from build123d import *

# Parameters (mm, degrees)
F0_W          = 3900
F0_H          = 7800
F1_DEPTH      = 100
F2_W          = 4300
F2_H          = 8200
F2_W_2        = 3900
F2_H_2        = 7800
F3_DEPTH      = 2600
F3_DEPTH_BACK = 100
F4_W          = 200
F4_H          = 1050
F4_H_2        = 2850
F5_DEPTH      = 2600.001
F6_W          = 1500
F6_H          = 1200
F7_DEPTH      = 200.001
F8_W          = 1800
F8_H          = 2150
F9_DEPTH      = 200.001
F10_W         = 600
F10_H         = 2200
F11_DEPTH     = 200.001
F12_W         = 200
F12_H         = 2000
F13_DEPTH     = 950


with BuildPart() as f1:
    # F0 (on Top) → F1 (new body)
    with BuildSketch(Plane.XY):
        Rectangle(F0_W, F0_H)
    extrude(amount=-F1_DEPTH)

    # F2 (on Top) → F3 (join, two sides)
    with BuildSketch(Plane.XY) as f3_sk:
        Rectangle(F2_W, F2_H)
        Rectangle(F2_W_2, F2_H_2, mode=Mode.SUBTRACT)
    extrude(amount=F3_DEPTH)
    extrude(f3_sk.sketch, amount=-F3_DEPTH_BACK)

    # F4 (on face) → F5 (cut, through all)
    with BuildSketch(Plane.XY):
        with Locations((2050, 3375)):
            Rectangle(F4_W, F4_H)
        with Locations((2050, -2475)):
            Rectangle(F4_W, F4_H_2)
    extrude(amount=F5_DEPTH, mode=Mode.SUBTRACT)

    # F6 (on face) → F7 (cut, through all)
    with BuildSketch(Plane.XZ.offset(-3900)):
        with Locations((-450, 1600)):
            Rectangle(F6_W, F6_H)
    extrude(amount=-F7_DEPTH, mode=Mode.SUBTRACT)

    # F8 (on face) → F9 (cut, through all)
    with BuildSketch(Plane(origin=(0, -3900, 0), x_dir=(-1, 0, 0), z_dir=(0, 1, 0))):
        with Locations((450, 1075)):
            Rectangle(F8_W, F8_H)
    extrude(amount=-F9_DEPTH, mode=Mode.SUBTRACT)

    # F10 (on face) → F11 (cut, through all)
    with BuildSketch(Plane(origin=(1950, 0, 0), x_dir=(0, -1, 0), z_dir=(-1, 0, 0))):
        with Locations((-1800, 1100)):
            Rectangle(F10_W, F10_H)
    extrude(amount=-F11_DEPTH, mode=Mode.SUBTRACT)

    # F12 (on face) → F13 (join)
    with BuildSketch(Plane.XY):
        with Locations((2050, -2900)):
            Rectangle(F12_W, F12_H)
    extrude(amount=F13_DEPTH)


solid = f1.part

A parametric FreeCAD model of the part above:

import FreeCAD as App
import Part
import Sketcher
from FreeCAD import Vector


def add_polygon(sketch, points):
    """Adds a closed chain of lines whose ends are joined by coincident constraints."""
    first, n = sketch.GeometryCount, len(points)
    for a, b in zip(points, points[1:] + points[:1]):
        sketch.addGeometry(Part.LineSegment(App.Vector(*a, 0), App.Vector(*b, 0)), False)
    for i in range(n):
        sketch.addConstraint(Sketcher.Constraint("Coincident", first + i, 2, first + (i + 1) % n, 1))

doc = App.newDocument("Part")
body = doc.addObject("PartDesign::Body", "Body")

sketch1 = body.newObject("Sketcher::SketchObject", "Sketch")
sketch1.AttachmentSupport = (doc.getObject("XY_Plane"), [""])
sketch1.MapMode = "FlatFace"
add_polygon(sketch1, [(-1950, 3900), (-1950, -3900), (1950, -3900), (1950, 3900)])
sketch1.addConstraint([
    Sketcher.Constraint("Vertical", 0),
    Sketcher.Constraint("Horizontal", 1),
    Sketcher.Constraint("Vertical", 2),
    Sketcher.Constraint("Horizontal", 3),
    Sketcher.Constraint("Symmetric", 0, 2, 2, 2, -1, 1),
    Sketcher.Constraint("DistanceX", 1, 1, 1, 2, 3900.0),
    Sketcher.Constraint("DistanceY", 0, 2, 0, 1, 7800.0),
])
pad1 = body.newObject("PartDesign::Pad", "Pad")
pad1.Profile = sketch1
pad1.Length = 100
pad1.Reversed = True

sketch2 = body.newObject("Sketcher::SketchObject", "Sketch001")
sketch2.AttachmentSupport = (doc.getObject("XY_Plane"), [""])
sketch2.MapMode = "FlatFace"
add_polygon(sketch2, [(-2150, 4100), (-2150, -4100), (2150, -4100), (2150, 4100)])
add_polygon(sketch2, [(1950, -3900), (-1950, -3900), (-1950, 3900), (1950, 3900)])
sketch2.addConstraint([
    Sketcher.Constraint("Vertical", 0),
    Sketcher.Constraint("Horizontal", 1),
    Sketcher.Constraint("Vertical", 2),
    Sketcher.Constraint("Horizontal", 3),
    Sketcher.Constraint("Horizontal", 4),
    Sketcher.Constraint("Vertical", 5),
    Sketcher.Constraint("Horizontal", 6),
    Sketcher.Constraint("Vertical", 7),
    Sketcher.Constraint("Symmetric", 0, 2, 2, 2, -1, 1),
    Sketcher.Constraint("Symmetric", 4, 2, 6, 2, -1, 1),
    Sketcher.Constraint("DistanceX", 1, 1, 1, 2, 4300.0),
    Sketcher.Constraint("DistanceX", 4, 2, 4, 1, 3900.0),
    Sketcher.Constraint("DistanceY", 0, 2, 0, 1, 8200.0),
    Sketcher.Constraint("DistanceY", 5, 1, 5, 2, 7800.0),
])
pad2 = body.newObject("PartDesign::Pad", "Pad001")
pad2.Profile = sketch2
pad2.Type = "TwoLengths"
pad2.Length = 2600
pad2.Length2 = 100

sketch3 = body.newObject("Sketcher::SketchObject", "Sketch002")
sketch3.AttachmentSupport = (doc.getObject("XY_Plane"), [""])
sketch3.MapMode = "FlatFace"
add_polygon(sketch3, [(1950, 3900), (1950, 2850), (2150, 2850), (2150, 3900)])
add_polygon(sketch3, [(1950, -1050), (1950, -3900), (2150, -3900), (2150, -1050)])
sketch3.addConstraint([
    Sketcher.Constraint("Vertical", 0),
    Sketcher.Constraint("Horizontal", 1),
    Sketcher.Constraint("Vertical", 2),
    Sketcher.Constraint("Horizontal", 3),
    Sketcher.Constraint("Vertical", 4),
    Sketcher.Constraint("Horizontal", 5),
    Sketcher.Constraint("Vertical", 6),
    Sketcher.Constraint("Horizontal", 7),
    Sketcher.Constraint("Symmetric", 3, 2, 4, 2, -1),
    Sketcher.Constraint("Vertical", 2, 2, 5, 2),
    Sketcher.Constraint("DistanceX", 1, 1, 1, 2, 200.0),
    Sketcher.Constraint("DistanceY", 0, 2, 0, 1, 1050.0),
    Sketcher.Constraint("DistanceY", 4, 2, 4, 1, 2850.0),
    Sketcher.Constraint("DistanceX", -1, 1, 0, 2, 1950.0),
    Sketcher.Constraint("DistanceY", -1, 1, 0, 2, 2850.0),
])
pocket1 = body.newObject("PartDesign::Pocket", "Pocket")
pocket1.Profile = sketch3
pocket1.Type = "ThroughAll"
pocket1.Reversed = True

sketch4 = body.newObject("Sketcher::SketchObject", "Sketch003")
sketch4.AttachmentSupport = (doc.getObject("XZ_Plane"), [""])
sketch4.MapMode = "FlatFace"
sketch4.AttachmentOffset = App.Placement(Vector(0, 0, -3900), App.Rotation())
add_polygon(sketch4, [(-1200, 2200), (-1200, 1000), (300, 1000), (300, 2200)])
sketch4.addConstraint([
    Sketcher.Constraint("Vertical", 0),
    Sketcher.Constraint("Horizontal", 1),
    Sketcher.Constraint("Vertical", 2),
    Sketcher.Constraint("Horizontal", 3),
    Sketcher.Constraint("DistanceX", 1, 1, 1, 2, 1500.0),
    Sketcher.Constraint("DistanceY", 0, 2, 0, 1, 1200.0),
    Sketcher.Constraint("DistanceX", 0, 2, -1, 1, 1200.0),
    Sketcher.Constraint("DistanceY", -1, 1, 0, 2, 1000.0),
])
pocket2 = body.newObject("PartDesign::Pocket", "Pocket001")
pocket2.Profile = sketch4
pocket2.Type = "ThroughAll"

sketch5 = body.newObject("Sketcher::SketchObject", "Sketch004")
sketch5.AttachmentSupport = (doc.getObject("XZ_Plane"), [""])
sketch5.MapMode = "FlatFace"
sketch5.AttachmentOffset = App.Placement(Vector(0, 0, 3900), App.Rotation())
add_polygon(sketch5, [(450, 2150), (450, 0), (-1350, 0), (-1350, 2150)])
sketch5.addConstraint([
    Sketcher.Constraint("Vertical", 0),
    Sketcher.Constraint("Horizontal", 1),
    Sketcher.Constraint("Vertical", 2),
    Sketcher.Constraint("Horizontal", 3),
    Sketcher.Constraint("PointOnObject", 0, 2, -1),
    Sketcher.Constraint("DistanceX", 1, 2, 1, 1, 1800.0),
    Sketcher.Constraint("DistanceY", 0, 2, 0, 1, 2150.0),
    Sketcher.Constraint("DistanceX", -1, 1, 0, 2, 450.0),
])
pocket3 = body.newObject("PartDesign::Pocket", "Pocket002")
pocket3.Profile = sketch5
pocket3.Type = "ThroughAll"
pocket3.Reversed = True

sketch6 = body.newObject("Sketcher::SketchObject", "Sketch005")
sketch6.AttachmentSupport = (doc.getObject("YZ_Plane"), [""])
sketch6.MapMode = "FlatFace"
sketch6.AttachmentOffset = App.Placement(Vector(0, 0, 1950), App.Rotation())
add_polygon(sketch6, [(2100, 2200), (2100, 0), (1500, 0), (1500, 2200)])
sketch6.addConstraint([
    Sketcher.Constraint("Vertical", 0),
    Sketcher.Constraint("Horizontal", 1),
    Sketcher.Constraint("Vertical", 2),
    Sketcher.Constraint("Horizontal", 3),
    Sketcher.Constraint("PointOnObject", 0, 2, -1),
    Sketcher.Constraint("DistanceX", 1, 2, 1, 1, 600.0),
    Sketcher.Constraint("DistanceY", 0, 2, 0, 1, 2200.0),
    Sketcher.Constraint("DistanceX", -1, 1, 0, 2, 2100.0),
])
pocket4 = body.newObject("PartDesign::Pocket", "Pocket003")
pocket4.Profile = sketch6
pocket4.Type = "ThroughAll"
pocket4.Reversed = True

sketch7 = body.newObject("Sketcher::SketchObject", "Sketch006")
sketch7.AttachmentSupport = (doc.getObject("XY_Plane"), [""])
sketch7.MapMode = "FlatFace"
add_polygon(sketch7, [(1950, -1900), (1950, -3900), (2150, -3900), (2150, -1900)])
sketch7.addConstraint([
    Sketcher.Constraint("Vertical", 0),
    Sketcher.Constraint("Horizontal", 1),
    Sketcher.Constraint("Vertical", 2),
    Sketcher.Constraint("Horizontal", 3),
    Sketcher.Constraint("DistanceX", 1, 1, 1, 2, 200.0),
    Sketcher.Constraint("DistanceY", 0, 2, 0, 1, 2000.0),
    Sketcher.Constraint("DistanceX", -1, 1, 0, 2, 1950.0),
    Sketcher.Constraint("DistanceY", 0, 2, -1, 1, 3900.0),
])
pad3 = body.newObject("PartDesign::Pad", "Pad002")
pad3.Profile = sketch7
pad3.Length = 950

doc.recompute()
